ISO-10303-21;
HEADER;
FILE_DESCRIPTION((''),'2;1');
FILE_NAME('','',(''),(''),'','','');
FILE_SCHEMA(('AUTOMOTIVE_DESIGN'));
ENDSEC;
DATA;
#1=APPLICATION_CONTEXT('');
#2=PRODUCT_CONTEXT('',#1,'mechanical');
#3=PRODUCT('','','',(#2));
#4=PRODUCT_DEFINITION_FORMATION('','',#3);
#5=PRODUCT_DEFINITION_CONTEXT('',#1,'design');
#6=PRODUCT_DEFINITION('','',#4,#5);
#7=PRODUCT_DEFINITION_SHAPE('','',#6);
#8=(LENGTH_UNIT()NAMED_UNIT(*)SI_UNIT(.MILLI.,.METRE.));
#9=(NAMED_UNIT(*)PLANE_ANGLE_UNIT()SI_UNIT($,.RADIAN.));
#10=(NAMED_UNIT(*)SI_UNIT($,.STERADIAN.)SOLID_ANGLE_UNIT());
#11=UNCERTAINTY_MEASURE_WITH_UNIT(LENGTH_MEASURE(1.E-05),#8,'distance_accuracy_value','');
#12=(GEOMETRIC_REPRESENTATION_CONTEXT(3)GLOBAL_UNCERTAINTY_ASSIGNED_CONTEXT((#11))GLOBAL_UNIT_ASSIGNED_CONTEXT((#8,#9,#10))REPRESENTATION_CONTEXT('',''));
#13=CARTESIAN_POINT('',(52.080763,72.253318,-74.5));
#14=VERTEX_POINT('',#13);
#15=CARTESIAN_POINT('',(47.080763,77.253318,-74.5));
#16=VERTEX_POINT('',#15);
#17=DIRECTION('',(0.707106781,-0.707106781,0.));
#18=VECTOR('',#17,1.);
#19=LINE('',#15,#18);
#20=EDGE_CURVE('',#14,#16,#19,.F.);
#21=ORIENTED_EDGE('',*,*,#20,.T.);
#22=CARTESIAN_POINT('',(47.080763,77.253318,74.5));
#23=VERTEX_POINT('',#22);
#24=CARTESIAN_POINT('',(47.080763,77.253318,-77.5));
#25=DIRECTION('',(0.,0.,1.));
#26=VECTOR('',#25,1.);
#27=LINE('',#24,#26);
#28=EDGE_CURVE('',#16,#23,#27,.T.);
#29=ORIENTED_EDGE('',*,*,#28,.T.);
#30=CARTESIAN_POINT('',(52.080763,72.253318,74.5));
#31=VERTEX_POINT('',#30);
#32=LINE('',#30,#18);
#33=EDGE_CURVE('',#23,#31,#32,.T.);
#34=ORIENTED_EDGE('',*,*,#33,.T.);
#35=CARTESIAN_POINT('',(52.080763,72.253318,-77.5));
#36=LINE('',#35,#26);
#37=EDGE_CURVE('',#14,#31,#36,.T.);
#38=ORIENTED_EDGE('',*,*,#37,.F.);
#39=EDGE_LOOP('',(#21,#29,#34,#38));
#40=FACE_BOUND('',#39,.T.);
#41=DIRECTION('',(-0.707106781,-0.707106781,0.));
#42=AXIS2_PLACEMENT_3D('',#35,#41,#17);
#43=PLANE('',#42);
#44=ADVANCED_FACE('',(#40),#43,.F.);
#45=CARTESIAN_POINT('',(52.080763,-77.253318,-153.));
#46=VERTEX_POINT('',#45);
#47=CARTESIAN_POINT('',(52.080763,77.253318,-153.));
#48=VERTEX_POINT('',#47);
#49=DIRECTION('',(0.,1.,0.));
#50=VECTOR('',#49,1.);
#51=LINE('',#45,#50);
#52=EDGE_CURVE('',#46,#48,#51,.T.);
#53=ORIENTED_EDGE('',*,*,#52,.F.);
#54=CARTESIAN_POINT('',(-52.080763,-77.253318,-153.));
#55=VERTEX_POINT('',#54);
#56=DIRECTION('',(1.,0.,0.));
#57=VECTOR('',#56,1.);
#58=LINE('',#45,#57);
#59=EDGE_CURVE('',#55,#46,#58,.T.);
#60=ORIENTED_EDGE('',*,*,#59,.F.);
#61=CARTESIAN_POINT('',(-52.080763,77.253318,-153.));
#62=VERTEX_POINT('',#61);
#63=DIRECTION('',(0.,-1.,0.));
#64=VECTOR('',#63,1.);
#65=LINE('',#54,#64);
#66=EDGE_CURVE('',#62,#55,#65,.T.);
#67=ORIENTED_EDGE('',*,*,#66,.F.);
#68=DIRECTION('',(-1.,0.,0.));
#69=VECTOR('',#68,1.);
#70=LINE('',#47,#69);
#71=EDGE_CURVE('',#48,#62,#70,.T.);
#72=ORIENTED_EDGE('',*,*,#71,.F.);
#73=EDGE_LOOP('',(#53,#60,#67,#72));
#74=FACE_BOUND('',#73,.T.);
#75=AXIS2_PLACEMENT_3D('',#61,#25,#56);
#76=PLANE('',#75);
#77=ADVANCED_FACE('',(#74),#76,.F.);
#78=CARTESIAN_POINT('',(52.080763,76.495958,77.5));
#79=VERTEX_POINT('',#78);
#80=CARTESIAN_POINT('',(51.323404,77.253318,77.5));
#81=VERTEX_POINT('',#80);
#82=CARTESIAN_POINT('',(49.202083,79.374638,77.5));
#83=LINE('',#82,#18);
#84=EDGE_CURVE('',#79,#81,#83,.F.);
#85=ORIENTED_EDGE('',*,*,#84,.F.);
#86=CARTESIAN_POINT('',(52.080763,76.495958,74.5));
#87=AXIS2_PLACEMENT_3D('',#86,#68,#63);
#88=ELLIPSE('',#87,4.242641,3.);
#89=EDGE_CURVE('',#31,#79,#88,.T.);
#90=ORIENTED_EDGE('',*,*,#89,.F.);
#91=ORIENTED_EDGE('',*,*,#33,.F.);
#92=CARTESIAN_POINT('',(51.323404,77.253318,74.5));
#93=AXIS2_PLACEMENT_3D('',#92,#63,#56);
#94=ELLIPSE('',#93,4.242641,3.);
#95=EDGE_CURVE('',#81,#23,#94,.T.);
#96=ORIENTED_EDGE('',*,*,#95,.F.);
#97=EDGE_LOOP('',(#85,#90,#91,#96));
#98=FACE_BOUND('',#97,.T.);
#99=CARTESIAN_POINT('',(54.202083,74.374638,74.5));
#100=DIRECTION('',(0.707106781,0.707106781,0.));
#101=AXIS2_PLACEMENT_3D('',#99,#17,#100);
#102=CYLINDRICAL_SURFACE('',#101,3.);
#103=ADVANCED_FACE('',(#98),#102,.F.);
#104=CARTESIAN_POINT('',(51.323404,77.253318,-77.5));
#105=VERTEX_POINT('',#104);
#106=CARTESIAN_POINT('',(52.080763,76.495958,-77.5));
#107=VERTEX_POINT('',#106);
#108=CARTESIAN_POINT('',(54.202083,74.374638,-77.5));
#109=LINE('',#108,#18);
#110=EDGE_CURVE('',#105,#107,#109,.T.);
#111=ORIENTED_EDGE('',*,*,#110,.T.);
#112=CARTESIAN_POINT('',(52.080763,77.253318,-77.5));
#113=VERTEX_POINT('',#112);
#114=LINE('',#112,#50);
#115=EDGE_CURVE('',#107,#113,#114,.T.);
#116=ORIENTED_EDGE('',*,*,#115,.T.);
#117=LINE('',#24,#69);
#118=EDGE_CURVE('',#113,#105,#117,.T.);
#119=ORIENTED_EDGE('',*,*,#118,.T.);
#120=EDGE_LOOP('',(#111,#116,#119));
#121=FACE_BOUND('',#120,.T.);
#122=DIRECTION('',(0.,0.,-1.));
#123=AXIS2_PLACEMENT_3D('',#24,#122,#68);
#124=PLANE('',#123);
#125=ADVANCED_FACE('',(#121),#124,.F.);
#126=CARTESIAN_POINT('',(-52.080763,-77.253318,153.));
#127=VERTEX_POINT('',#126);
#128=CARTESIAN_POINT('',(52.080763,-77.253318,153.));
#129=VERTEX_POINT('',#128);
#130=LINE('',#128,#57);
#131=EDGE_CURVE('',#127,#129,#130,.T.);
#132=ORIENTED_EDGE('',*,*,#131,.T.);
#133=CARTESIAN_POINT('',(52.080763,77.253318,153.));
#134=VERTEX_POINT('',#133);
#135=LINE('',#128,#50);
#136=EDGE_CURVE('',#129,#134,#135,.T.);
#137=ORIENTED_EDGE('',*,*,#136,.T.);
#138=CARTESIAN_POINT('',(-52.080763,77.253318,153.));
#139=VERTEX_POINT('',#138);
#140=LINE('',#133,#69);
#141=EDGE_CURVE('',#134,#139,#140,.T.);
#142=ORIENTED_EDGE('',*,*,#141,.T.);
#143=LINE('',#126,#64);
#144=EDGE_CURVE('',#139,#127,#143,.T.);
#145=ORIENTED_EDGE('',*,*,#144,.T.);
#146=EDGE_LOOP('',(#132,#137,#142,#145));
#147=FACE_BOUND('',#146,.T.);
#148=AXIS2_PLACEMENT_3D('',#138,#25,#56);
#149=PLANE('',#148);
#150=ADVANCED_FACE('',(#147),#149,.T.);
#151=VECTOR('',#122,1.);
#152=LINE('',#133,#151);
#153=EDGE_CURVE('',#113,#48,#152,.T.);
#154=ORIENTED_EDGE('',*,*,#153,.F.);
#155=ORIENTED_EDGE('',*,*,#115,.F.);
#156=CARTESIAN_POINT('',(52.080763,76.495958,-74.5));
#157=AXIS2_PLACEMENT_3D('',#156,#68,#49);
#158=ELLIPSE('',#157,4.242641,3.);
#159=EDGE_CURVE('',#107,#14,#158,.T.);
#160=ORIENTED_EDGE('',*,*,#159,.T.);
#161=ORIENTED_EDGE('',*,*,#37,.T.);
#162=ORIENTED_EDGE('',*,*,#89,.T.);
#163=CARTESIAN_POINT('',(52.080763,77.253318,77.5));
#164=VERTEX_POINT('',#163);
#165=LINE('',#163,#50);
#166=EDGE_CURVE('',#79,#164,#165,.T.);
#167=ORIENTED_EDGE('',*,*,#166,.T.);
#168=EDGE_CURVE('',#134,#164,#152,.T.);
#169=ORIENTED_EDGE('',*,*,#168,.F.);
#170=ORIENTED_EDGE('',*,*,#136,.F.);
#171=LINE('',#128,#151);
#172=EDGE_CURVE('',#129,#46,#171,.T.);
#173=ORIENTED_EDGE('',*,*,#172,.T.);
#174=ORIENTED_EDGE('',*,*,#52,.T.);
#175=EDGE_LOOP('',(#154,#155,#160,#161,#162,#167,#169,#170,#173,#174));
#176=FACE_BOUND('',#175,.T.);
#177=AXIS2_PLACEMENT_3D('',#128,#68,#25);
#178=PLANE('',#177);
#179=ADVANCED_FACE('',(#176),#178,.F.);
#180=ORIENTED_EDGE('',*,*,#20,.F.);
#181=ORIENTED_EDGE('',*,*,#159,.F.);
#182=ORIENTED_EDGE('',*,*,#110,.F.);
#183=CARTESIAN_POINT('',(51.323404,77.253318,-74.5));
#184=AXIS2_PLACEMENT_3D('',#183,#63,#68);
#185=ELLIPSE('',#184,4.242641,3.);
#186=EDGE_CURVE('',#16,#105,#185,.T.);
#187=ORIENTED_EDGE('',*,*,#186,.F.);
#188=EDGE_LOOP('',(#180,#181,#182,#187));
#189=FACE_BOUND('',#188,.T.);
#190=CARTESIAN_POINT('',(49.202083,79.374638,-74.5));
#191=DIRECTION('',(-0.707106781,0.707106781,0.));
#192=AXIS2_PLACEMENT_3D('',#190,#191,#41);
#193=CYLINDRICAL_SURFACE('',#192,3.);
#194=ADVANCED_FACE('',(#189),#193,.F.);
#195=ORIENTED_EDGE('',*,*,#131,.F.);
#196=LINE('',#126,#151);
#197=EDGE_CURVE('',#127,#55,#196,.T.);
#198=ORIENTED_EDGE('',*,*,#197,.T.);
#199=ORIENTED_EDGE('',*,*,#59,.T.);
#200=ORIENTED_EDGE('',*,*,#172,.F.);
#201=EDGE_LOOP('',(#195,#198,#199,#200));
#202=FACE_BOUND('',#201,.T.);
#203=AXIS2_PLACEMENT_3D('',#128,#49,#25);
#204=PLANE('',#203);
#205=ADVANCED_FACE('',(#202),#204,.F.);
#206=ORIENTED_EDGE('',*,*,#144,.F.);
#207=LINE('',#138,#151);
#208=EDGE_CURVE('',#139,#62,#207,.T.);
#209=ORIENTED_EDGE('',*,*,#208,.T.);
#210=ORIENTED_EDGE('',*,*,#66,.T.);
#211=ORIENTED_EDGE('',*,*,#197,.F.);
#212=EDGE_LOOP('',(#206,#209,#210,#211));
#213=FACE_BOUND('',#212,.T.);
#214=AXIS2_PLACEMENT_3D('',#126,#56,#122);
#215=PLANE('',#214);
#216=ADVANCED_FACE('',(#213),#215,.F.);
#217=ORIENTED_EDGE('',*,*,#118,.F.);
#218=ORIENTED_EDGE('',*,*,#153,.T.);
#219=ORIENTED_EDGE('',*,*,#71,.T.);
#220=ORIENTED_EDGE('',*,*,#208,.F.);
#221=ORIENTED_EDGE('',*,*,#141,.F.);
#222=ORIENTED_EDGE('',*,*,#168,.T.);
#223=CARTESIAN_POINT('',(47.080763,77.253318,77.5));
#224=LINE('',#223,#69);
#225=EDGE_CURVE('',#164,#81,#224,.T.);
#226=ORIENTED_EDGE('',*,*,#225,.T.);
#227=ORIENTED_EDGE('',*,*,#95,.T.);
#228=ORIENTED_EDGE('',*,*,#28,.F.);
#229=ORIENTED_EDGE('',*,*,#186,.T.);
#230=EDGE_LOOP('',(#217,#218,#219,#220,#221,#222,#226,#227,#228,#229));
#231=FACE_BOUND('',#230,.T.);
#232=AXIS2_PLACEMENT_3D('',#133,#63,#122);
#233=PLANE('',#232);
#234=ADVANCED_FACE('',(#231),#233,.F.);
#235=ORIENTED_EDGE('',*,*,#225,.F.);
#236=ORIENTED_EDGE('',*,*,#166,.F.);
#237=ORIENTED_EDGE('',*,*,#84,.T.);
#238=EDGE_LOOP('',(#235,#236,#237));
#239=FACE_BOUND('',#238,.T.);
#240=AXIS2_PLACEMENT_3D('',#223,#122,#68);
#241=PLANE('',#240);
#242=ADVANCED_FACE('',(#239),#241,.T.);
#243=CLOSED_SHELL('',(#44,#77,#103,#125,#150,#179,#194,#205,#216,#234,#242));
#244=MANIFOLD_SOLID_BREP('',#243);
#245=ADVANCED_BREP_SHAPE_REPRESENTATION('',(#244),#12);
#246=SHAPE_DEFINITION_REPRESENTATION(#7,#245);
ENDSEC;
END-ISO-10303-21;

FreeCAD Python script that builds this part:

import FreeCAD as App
import Part
import Sketcher

V = App.Vector


def edges_at(feature, points):
    """Names of the edges that pass closest to the given points."""
    edges = feature.Shape.Edges
    near = lambda p: min(range(len(edges)), key=lambda i: edges[i].distToShape(Part.Vertex(*p))[0])
    return sorted({f"Edge{near(p) + 1}" for p in points})

doc = App.newDocument("Part")
body = doc.addObject("PartDesign::Body", "Body")

# Sketch on XY plane
sketch1 = body.newObject("Sketcher::SketchObject", "Sketch")
sketch1.AttachmentSupport = (doc.getObject("XY_Plane"), [""])
sketch1.MapMode = "FlatFace"
sketch1.addGeometry([
    Part.LineSegment(V(-52, 77, 0), V(-52, -77, 0)),
    Part.LineSegment(V(-52, -77, 0), V(52, -77, 0)),
    Part.LineSegment(V(52, -77, 0), V(52, 77, 0)),
    Part.LineSegment(V(52, 77, 0), V(-52, 77, 0)),
], False)
sketch1.addConstraint([
    Sketcher.Constraint("Coincident", 0, 2, 1, 1),
    Sketcher.Constraint("Coincident", 1, 2, 2, 1),
    Sketcher.Constraint("Coincident", 2, 2, 3, 1),
    Sketcher.Constraint("Coincident", 3, 2, 0, 1),
    Sketcher.Constraint("Vertical", 0),
    Sketcher.Constraint("Horizontal", 1),
    Sketcher.Constraint("Vertical", 2),
    Sketcher.Constraint("Horizontal", 3),
    Sketcher.Constraint("Symmetric", 0, 2, 2, 2, -1, 1),
    Sketcher.Constraint("DistanceX", 1, 1, 1, 2, 104.161526),
    Sketcher.Constraint("DistanceY", 0, 2, 0, 1, 154.506635),
])
pad1 = body.newObject("PartDesign::Pad", "Pad")
pad1.Profile = sketch1
pad1.Length = 306
pad1.Midplane = True

# Sketch on XY plane
sketch2 = body.newObject("Sketcher::SketchObject", "Sketch001")
sketch2.AttachmentSupport = (doc.getObject("XY_Plane"), [""])
sketch2.MapMode = "FlatFace"
sketch2.addGeometry([
    Part.LineSegment(V(52, 77, 0), V(47, 77, 0)),
    Part.LineSegment(V(47, 77, 0), V(52, 72, 0)),
    Part.LineSegment(V(52, 72, 0), V(52, 77, 0)),
], False)
sketch2.addConstraint([
    Sketcher.Constraint("Coincident", 0, 2, 1, 1),
    Sketcher.Constraint("Coincident", 1, 2, 2, 1),
    Sketcher.Constraint("Coincident", 2, 2, 0, 1),
    Sketcher.Constraint("Horizontal", 0),
    Sketcher.Constraint("Vertical", 2),
    Sketcher.Constraint("Equal", 0, 2),
    Sketcher.Constraint("DistanceX", 0, 2, 0, 1, 5.0),
    Sketcher.Constraint("DistanceX", -1, 1, 0, 2, 47.080763),
    Sketcher.Constraint("DistanceY", -1, 1, 0, 2, 77.253318),
])
pocket1 = body.newObject("PartDesign::Pocket", "Pocket")
pocket1.Profile = sketch2
pocket1.Length = 155
pocket1.Midplane = True
doc.recompute()

fillet = body.newObject("PartDesign::Fillet", "Fillet")
fillet.Base = (pocket1, edges_at(pocket1, [(49.581, 74.753, -77.5), (49.581, 74.753, 77.5)]))
fillet.Radius = 3

doc.recompute()
